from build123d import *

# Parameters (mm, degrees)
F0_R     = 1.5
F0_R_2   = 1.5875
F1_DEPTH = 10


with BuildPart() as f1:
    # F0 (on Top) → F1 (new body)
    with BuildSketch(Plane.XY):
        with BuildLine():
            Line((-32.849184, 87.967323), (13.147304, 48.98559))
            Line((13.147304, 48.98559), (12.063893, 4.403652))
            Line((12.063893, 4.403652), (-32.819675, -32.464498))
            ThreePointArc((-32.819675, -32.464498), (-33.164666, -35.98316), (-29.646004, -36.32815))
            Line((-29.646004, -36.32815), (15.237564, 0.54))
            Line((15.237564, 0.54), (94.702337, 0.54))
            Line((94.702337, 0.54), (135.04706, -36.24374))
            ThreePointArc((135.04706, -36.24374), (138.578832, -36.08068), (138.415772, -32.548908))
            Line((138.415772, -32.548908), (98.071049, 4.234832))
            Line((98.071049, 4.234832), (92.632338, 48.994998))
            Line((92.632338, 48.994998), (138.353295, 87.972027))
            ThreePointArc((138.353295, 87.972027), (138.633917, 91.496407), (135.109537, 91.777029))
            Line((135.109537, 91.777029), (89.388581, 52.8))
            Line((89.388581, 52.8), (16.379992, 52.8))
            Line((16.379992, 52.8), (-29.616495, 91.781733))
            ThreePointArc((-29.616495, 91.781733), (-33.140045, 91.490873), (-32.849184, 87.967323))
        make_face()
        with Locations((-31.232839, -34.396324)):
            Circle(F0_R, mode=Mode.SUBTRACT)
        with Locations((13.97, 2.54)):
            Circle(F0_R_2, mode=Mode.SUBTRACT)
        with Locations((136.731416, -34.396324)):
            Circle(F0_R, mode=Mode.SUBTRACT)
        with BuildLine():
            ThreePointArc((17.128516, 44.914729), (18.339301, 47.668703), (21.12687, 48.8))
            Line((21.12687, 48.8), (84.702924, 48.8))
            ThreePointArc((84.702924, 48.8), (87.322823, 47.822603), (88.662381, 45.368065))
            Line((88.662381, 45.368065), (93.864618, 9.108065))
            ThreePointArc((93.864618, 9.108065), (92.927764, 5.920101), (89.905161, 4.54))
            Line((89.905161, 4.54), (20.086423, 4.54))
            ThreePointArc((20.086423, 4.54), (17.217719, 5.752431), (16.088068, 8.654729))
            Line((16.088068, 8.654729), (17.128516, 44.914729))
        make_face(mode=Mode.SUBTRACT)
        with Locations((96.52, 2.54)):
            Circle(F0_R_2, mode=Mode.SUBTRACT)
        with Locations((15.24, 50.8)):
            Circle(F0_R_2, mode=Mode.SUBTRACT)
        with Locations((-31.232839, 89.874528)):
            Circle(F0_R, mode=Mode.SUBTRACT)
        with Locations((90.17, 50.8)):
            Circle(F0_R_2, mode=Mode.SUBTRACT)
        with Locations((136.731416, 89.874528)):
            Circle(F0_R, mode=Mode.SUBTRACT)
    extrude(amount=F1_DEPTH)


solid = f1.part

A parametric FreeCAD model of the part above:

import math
import FreeCAD as App
import Part
import Sketcher
Q = App.Units.Quantity

doc = App.newDocument("Part")
params = doc.addObject("Spreadsheet::Sheet", "Params")
for row, (alias, value) in enumerate([
    ("sketch1_diameter", "3 mm"),
    ("sketch1_radius", "4 mm"),
    ("sketch1_radius2", "2.5 mm"),
    ("pad1_length", "10 mm"),
], start=1):
    params.set(f"A{row}", alias)
    params.set(f"B{row}", "=" + value)
    params.setAlias(f"B{row}", alias)

body = doc.addObject("PartDesign::Body", "Body")

sketch1 = body.newObject("Sketcher::SketchObject", "Sketch")
sketch1.AttachmentSupport = (doc.getObject("XY_Plane"), [""])
sketch1.MapMode = "FlatFace"
sketch1.addGeometry(Part.LineSegment(App.Vector(-32.8, 88, 0), App.Vector(13.1, 49, 0)), False)
sketch1.addGeometry(Part.LineSegment(App.Vector(13.1, 49, 0), App.Vector(12.1, 4.4, 0)), False)
sketch1.addGeometry(Part.LineSegment(App.Vector(12.1, 4.4, 0), App.Vector(-32.8, -32.5, 0)), False)
sketch1.addGeometry(Part.ArcOfCircle(Part.Circle(App.Vector(-31.2, -34.4, 0), App.Vector(0, 0, 1), 2.5), math.radians(129), math.radians(309)), False)
sketch1.addGeometry(Part.LineSegment(App.Vector(-29.6, -36.3, 0), App.Vector(15.2, 0.5, 0)), False)
sketch1.addGeometry(Part.LineSegment(App.Vector(15.2, 0.5, 0), App.Vector(94.7, 0.5, 0)), False)
sketch1.addGeometry(Part.LineSegment(App.Vector(94.7, 0.5, 0), App.Vector(135, -36.2, 0)), False)
sketch1.addGeometry(Part.ArcOfCircle(Part.Circle(App.Vector(136.7, -34.4, 0), App.Vector(0, 0, 1), 2.5), math.radians(-132), math.radians(48)), False)
sketch1.addGeometry(Part.LineSegment(App.Vector(138.4, -32.5, 0), App.Vector(98.1, 4.2, 0)), False)
sketch1.addGeometry(Part.LineSegment(App.Vector(98.1, 4.2, 0), App.Vector(92.6, 49, 0)), False)
sketch1.addGeometry(Part.LineSegment(App.Vector(92.6, 49, 0), App.Vector(138.4, 88, 0)), False)
sketch1.addGeometry(Part.ArcOfCircle(Part.Circle(App.Vector(136.7, 89.9, 0), App.Vector(0, 0, 1), 2.5), math.radians(-50), math.radians(130)), False)
sketch1.addGeometry(Part.LineSegment(App.Vector(135.1, 91.8, 0), App.Vector(89.4, 52.8, 0)), False)
sketch1.addGeometry(Part.LineSegment(App.Vector(89.4, 52.8, 0), App.Vector(16.4, 52.8, 0)), False)
sketch1.addGeometry(Part.LineSegment(App.Vector(16.4, 52.8, 0), App.Vector(-29.6, 91.8, 0)), False)
sketch1.addGeometry(Part.ArcOfCircle(Part.Circle(App.Vector(-31.2, 89.9, 0), App.Vector(0, 0, 1), 2.5), math.radians(50), math.radians(230)), False)
sketch1.addGeometry(Part.Circle(App.Vector(-31.2, -34.4, 0), App.Vector(0, 0, 1), 1.5), False)
sketch1.addGeometry(Part.Circle(App.Vector(14, 2.5, 0), App.Vector(0, 0, 1), 1.6), False)
sketch1.addGeometry(Part.Circle(App.Vector(136.7, -34.4, 0), App.Vector(0, 0, 1), 1.5), False)
sketch1.addGeometry(Part.LineSegment(App.Vector(16.1, 8.7, 0), App.Vector(17.1, 44.9, 0)), False)
sketch1.addGeometry(Part.ArcOfCircle(Part.Circle(App.Vector(21.1, 44.8, 0), App.Vector(0, 0, 1), 4), math.radians(90), math.radians(178)), False)
sketch1.addGeometry(Part.LineSegment(App.Vector(21.1, 48.8, 0), App.Vector(84.7, 48.8, 0)), False)
sketch1.addGeometry(Part.ArcOfCircle(Part.Circle(App.Vector(84.7, 44.8, 0), App.Vector(0, 0, 1), 4), math.radians(8), math.radians(90)), False)
sketch1.addGeometry(Part.LineSegment(App.Vector(88.7, 45.4, 0), App.Vector(93.9, 9.1, 0)), False)
sketch1.addGeometry(Part.ArcOfCircle(Part.Circle(App.Vector(89.9, 8.5, 0), App.Vector(0, 0, 1), 4), math.radians(-90), math.radians(8)), False)
sketch1.addGeometry(Part.LineSegment(App.Vector(89.9, 4.5, 0), App.Vector(20.1, 4.5, 0)), False)
sketch1.addGeometry(Part.ArcOfCircle(Part.Circle(App.Vector(20.1, 8.5, 0), App.Vector(0, 0, 1), 4), math.radians(178), math.radians(270)), False)
sketch1.addGeometry(Part.Circle(App.Vector(96.5, 2.5, 0), App.Vector(0, 0, 1), 1.6), False)
sketch1.addGeometry(Part.Circle(App.Vector(15.2, 50.8, 0), App.Vector(0, 0, 1), 1.6), False)
sketch1.addGeometry(Part.Circle(App.Vector(-31.2, 89.9, 0), App.Vector(0, 0, 1), 1.5), False)
sketch1.addGeometry(Part.Circle(App.Vector(90.2, 50.8, 0), App.Vector(0, 0, 1), 1.6), False)
sketch1.addGeometry(Part.Circle(App.Vector(136.7, 89.9, 0), App.Vector(0, 0, 1), 1.5), False)
sketch1.addConstraint(Sketcher.Constraint("Coincident", 0, 2, 1, 1))
sketch1.addConstraint(Sketcher.Constraint("Coincident", 1, 2, 2, 1))
sketch1.addConstraint(Sketcher.Constraint("Tangent", 2, 2, 3, 1))
sketch1.addConstraint(Sketcher.Constraint("Tangent", 3, 2, 4, 1))
sketch1.addConstraint(Sketcher.Constraint("Coincident", 4, 2, 5, 1))
sketch1.addConstraint(Sketcher.Constraint("Coincident", 5, 2, 6, 1))
sketch1.addConstraint(Sketcher.Constraint("Tangent", 6, 2, 7, 1))
sketch1.addConstraint(Sketcher.Constraint("Tangent", 7, 2, 8, 1))
sketch1.addConstraint(Sketcher.Constraint("Coincident", 8, 2, 9, 1))
sketch1.addConstraint(Sketcher.Constraint("Coincident", 9, 2, 10, 1))
sketch1.addConstraint(Sketcher.Constraint("Tangent", 10, 2, 11, 1))
sketch1.addConstraint(Sketcher.Constraint("Tangent", 11, 2, 12, 1))
sketch1.addConstraint(Sketcher.Constraint("Coincident", 12, 2, 13, 1))
sketch1.addConstraint(Sketcher.Constraint("Coincident", 13, 2, 14, 1))
sketch1.addConstraint(Sketcher.Constraint("Tangent", 14, 2, 15, 1))
sketch1.addConstraint(Sketcher.Constraint("Tangent", 15, 2, 0, 1))
sketch1.addConstraint(Sketcher.Constraint("Tangent", 19, 2, 20, 2))
sketch1.addConstraint(Sketcher.Constraint("Tangent", 20, 1, 21, 1))
sketch1.addConstraint(Sketcher.Constraint("Tangent", 21, 2, 22, 2))
sketch1.addConstraint(Sketcher.Constraint("Tangent", 22, 1, 23, 1))
sketch1.addConstraint(Sketcher.Constraint("Tangent", 23, 2, 24, 2))
sketch1.addConstraint(Sketcher.Constraint("Tangent", 24, 1, 25, 1))
sketch1.addConstraint(Sketcher.Constraint("Tangent", 25, 2, 26, 2))
sketch1.addConstraint(Sketcher.Constraint("Tangent", 26, 1, 19, 1))
sketch1.addConstraint(Sketcher.Constraint("Horizontal", 5))
sketch1.addConstraint(Sketcher.Constraint("Horizontal", 13))
sketch1.addConstraint(Sketcher.Constraint("Horizontal", 21))
sketch1.addConstraint(Sketcher.Constraint("Horizontal", 25))
sketch1.addConstraint(Sketcher.Constraint("Coincident", 16, 3, 3, 3))
sketch1.addConstraint(Sketcher.Constraint("Coincident", 18, 3, 7, 3))
sketch1.addConstraint(Sketcher.Constraint("Coincident", 29, 3, 15, 3))
sketch1.addConstraint(Sketcher.Constraint("Coincident", 31, 3, 11, 3))
sketch1.addConstraint(Sketcher.Constraint("Equal", 3, 7))
sketch1.addConstraint(Sketcher.Constraint("Equal", 7, 11))
sketch1.addConstraint(Sketcher.Constraint("Equal", 11, 15))
sketch1.addConstraint(Sketcher.Constraint("Equal", 16, 18))
sketch1.addConstraint(Sketcher.Constraint("Equal", 20, 22))
sketch1.addConstraint(Sketcher.Constraint("Equal", 22, 24))
sketch1.addConstraint(Sketcher.Constraint("Equal", 24, 26))
sketch1.addConstraint(Sketcher.Constraint("Equal", 17, 27))
sketch1.addConstraint(Sketcher.Constraint("Equal", 27, 28))
sketch1.addConstraint(Sketcher.Constraint("Equal", 18, 29))
sketch1.addConstraint(Sketcher.Constraint("Equal", 28, 30))
sketch1.addConstraint(Sketcher.Constraint("Equal", 29, 31))
sketch1.addConstraint(Sketcher.Constraint("Parallel", 2, 4))
sketch1.addConstraint(Sketcher.Constraint("Parallel", 6, 8))
sketch1.addConstraint(Sketcher.Constraint("Parallel", 10, 12))
sketch1.addConstraint(Sketcher.Constraint("Parallel", 0, 14))
sketch1.addConstraint(Sketcher.Constraint("Horizontal", 3, 3, 7, 3))
sketch1.addConstraint(Sketcher.Constraint("Horizontal", 11, 3, 15, 3))
sketch1.addConstraint(Sketcher.Constraint("Horizontal", 17, 3, 27, 3))
sketch1.addConstraint(Sketcher.Constraint("Horizontal", 28, 3, 30, 3))
sketch1.addConstraint(Sketcher.Constraint("Vertical", 7, 3, 11, 3))
sketch1.addConstraint(Sketcher.Constraint("Vertical", 3, 3, 15, 3))
sketch1.addConstraint(Sketcher.Constraint("Equal", 2, 4))
sketch1.addConstraint(Sketcher.Constraint("Equal", 6, 8))
sketch1.addConstraint(Sketcher.Constraint("Equal", 10, 12))
sketch1.addConstraint(Sketcher.Constraint("Equal", 0, 14))
sketch1.addConstraint(Sketcher.Constraint("Diameter", 16, Q("3 mm")))
sketch1.addConstraint(Sketcher.Constraint("Radius", 20, Q("4 mm")))
sketch1.addConstraint(Sketcher.Constraint("Radius", 3, Q("2.5 mm")))
sketch1.addConstraint(Sketcher.Constraint("Diameter", 17, Q("3.175 mm")))
sketch1.addConstraint(Sketcher.Constraint("DistanceY", 17, 3, 24, 3, Q("6 mm")))
sketch1.addConstraint(Sketcher.Constraint("DistanceY", 20, 3, 28, 3, Q("6 mm")))
sketch1.addConstraint(Sketcher.Constraint("DistanceY", 4, 2, 17, 3, Q("2 mm")))
sketch1.addConstraint(Sketcher.Constraint("DistanceY", 30, 3, 12, 2, Q("2 mm")))
sketch1.addConstraint(Sketcher.Constraint("DistanceY", -1, 1, 20, 3, Q("44.8 mm")))
sketch1.addConstraint(Sketcher.Constraint("DistanceX", -1, 1, 17, 3, Q("13.97 mm")))
sketch1.addConstraint(Sketcher.Constraint("DistanceY", -1, 1, 17, 3, Q("2.54 mm")))
sketch1.addConstraint(Sketcher.Constraint("DistanceX", -1, 1, 27, 3, Q("96.52 mm")))
sketch1.addConstraint(Sketcher.Constraint("DistanceX", -1, 1, 28, 3, Q("15.24 mm")))
sketch1.addConstraint(Sketcher.Constraint("DistanceX", -1, 1, 30, 3, Q("90.17 mm")))
sketch1.addConstraint(Sketcher.Constraint("DistanceY", -1, 1, 9, 2, Q("48.994998 mm")))
sketch1.addConstraint(Sketcher.Constraint("Distance", 1, Q("44.5951 mm")))
sketch1.addConstraint(Sketcher.Constraint("DistanceX", 13, 2, 13, 1, Q("73.008589 mm")))
sketch1.addConstraint(Sketcher.Constraint("DistanceX", 25, 2, 25, 1, Q("69.818738 mm")))
sketch1.addConstraint(Sketcher.Constraint("DistanceY", 2, 2, 26, 3, Q("41.004498 mm")))
sketch1.addConstraint(Sketcher.Constraint("DistanceX", 24, 3, 6, 2, Q("45.141899 mm")))
sketch1.addConstraint(Sketcher.Constraint("DistanceX", 9, 2, 11, 2, Q("42.477199 mm")))
sketch1.addConstraint(Sketcher.Constraint("DistanceX", 1, 2, 13, 2, Q("4.316099 mm")))
sketch1.addConstraint(Sketcher.Constraint("DistanceX", 22, 1, 12, 2, Q("0.7262 mm")))
sketch1.addConstraint(Sketcher.Constraint("Distance", 9, Q("45.089378 mm")))
sketch1.addConstraint(Sketcher.Constraint("DistanceX", 21, 1, 21, 2, Q("63.576054 mm")))
sketch1.addConstraint(Sketcher.Constraint("DistanceX", 3, 3, -1, 1, Q("31.23284 mm")))
sketch1.setExpression("Constraints[58]", "Params.sketch1_diameter")
sketch1.setExpression("Constraints[59]", "Params.sketch1_radius")
sketch1.setExpression("Constraints[60]", "Params.sketch1_radius2")
pad1 = body.newObject("PartDesign::Pad", "Pad")
pad1.Profile = sketch1
pad1.setExpression("Length", "Params.pad1_length")

doc.recompute()
